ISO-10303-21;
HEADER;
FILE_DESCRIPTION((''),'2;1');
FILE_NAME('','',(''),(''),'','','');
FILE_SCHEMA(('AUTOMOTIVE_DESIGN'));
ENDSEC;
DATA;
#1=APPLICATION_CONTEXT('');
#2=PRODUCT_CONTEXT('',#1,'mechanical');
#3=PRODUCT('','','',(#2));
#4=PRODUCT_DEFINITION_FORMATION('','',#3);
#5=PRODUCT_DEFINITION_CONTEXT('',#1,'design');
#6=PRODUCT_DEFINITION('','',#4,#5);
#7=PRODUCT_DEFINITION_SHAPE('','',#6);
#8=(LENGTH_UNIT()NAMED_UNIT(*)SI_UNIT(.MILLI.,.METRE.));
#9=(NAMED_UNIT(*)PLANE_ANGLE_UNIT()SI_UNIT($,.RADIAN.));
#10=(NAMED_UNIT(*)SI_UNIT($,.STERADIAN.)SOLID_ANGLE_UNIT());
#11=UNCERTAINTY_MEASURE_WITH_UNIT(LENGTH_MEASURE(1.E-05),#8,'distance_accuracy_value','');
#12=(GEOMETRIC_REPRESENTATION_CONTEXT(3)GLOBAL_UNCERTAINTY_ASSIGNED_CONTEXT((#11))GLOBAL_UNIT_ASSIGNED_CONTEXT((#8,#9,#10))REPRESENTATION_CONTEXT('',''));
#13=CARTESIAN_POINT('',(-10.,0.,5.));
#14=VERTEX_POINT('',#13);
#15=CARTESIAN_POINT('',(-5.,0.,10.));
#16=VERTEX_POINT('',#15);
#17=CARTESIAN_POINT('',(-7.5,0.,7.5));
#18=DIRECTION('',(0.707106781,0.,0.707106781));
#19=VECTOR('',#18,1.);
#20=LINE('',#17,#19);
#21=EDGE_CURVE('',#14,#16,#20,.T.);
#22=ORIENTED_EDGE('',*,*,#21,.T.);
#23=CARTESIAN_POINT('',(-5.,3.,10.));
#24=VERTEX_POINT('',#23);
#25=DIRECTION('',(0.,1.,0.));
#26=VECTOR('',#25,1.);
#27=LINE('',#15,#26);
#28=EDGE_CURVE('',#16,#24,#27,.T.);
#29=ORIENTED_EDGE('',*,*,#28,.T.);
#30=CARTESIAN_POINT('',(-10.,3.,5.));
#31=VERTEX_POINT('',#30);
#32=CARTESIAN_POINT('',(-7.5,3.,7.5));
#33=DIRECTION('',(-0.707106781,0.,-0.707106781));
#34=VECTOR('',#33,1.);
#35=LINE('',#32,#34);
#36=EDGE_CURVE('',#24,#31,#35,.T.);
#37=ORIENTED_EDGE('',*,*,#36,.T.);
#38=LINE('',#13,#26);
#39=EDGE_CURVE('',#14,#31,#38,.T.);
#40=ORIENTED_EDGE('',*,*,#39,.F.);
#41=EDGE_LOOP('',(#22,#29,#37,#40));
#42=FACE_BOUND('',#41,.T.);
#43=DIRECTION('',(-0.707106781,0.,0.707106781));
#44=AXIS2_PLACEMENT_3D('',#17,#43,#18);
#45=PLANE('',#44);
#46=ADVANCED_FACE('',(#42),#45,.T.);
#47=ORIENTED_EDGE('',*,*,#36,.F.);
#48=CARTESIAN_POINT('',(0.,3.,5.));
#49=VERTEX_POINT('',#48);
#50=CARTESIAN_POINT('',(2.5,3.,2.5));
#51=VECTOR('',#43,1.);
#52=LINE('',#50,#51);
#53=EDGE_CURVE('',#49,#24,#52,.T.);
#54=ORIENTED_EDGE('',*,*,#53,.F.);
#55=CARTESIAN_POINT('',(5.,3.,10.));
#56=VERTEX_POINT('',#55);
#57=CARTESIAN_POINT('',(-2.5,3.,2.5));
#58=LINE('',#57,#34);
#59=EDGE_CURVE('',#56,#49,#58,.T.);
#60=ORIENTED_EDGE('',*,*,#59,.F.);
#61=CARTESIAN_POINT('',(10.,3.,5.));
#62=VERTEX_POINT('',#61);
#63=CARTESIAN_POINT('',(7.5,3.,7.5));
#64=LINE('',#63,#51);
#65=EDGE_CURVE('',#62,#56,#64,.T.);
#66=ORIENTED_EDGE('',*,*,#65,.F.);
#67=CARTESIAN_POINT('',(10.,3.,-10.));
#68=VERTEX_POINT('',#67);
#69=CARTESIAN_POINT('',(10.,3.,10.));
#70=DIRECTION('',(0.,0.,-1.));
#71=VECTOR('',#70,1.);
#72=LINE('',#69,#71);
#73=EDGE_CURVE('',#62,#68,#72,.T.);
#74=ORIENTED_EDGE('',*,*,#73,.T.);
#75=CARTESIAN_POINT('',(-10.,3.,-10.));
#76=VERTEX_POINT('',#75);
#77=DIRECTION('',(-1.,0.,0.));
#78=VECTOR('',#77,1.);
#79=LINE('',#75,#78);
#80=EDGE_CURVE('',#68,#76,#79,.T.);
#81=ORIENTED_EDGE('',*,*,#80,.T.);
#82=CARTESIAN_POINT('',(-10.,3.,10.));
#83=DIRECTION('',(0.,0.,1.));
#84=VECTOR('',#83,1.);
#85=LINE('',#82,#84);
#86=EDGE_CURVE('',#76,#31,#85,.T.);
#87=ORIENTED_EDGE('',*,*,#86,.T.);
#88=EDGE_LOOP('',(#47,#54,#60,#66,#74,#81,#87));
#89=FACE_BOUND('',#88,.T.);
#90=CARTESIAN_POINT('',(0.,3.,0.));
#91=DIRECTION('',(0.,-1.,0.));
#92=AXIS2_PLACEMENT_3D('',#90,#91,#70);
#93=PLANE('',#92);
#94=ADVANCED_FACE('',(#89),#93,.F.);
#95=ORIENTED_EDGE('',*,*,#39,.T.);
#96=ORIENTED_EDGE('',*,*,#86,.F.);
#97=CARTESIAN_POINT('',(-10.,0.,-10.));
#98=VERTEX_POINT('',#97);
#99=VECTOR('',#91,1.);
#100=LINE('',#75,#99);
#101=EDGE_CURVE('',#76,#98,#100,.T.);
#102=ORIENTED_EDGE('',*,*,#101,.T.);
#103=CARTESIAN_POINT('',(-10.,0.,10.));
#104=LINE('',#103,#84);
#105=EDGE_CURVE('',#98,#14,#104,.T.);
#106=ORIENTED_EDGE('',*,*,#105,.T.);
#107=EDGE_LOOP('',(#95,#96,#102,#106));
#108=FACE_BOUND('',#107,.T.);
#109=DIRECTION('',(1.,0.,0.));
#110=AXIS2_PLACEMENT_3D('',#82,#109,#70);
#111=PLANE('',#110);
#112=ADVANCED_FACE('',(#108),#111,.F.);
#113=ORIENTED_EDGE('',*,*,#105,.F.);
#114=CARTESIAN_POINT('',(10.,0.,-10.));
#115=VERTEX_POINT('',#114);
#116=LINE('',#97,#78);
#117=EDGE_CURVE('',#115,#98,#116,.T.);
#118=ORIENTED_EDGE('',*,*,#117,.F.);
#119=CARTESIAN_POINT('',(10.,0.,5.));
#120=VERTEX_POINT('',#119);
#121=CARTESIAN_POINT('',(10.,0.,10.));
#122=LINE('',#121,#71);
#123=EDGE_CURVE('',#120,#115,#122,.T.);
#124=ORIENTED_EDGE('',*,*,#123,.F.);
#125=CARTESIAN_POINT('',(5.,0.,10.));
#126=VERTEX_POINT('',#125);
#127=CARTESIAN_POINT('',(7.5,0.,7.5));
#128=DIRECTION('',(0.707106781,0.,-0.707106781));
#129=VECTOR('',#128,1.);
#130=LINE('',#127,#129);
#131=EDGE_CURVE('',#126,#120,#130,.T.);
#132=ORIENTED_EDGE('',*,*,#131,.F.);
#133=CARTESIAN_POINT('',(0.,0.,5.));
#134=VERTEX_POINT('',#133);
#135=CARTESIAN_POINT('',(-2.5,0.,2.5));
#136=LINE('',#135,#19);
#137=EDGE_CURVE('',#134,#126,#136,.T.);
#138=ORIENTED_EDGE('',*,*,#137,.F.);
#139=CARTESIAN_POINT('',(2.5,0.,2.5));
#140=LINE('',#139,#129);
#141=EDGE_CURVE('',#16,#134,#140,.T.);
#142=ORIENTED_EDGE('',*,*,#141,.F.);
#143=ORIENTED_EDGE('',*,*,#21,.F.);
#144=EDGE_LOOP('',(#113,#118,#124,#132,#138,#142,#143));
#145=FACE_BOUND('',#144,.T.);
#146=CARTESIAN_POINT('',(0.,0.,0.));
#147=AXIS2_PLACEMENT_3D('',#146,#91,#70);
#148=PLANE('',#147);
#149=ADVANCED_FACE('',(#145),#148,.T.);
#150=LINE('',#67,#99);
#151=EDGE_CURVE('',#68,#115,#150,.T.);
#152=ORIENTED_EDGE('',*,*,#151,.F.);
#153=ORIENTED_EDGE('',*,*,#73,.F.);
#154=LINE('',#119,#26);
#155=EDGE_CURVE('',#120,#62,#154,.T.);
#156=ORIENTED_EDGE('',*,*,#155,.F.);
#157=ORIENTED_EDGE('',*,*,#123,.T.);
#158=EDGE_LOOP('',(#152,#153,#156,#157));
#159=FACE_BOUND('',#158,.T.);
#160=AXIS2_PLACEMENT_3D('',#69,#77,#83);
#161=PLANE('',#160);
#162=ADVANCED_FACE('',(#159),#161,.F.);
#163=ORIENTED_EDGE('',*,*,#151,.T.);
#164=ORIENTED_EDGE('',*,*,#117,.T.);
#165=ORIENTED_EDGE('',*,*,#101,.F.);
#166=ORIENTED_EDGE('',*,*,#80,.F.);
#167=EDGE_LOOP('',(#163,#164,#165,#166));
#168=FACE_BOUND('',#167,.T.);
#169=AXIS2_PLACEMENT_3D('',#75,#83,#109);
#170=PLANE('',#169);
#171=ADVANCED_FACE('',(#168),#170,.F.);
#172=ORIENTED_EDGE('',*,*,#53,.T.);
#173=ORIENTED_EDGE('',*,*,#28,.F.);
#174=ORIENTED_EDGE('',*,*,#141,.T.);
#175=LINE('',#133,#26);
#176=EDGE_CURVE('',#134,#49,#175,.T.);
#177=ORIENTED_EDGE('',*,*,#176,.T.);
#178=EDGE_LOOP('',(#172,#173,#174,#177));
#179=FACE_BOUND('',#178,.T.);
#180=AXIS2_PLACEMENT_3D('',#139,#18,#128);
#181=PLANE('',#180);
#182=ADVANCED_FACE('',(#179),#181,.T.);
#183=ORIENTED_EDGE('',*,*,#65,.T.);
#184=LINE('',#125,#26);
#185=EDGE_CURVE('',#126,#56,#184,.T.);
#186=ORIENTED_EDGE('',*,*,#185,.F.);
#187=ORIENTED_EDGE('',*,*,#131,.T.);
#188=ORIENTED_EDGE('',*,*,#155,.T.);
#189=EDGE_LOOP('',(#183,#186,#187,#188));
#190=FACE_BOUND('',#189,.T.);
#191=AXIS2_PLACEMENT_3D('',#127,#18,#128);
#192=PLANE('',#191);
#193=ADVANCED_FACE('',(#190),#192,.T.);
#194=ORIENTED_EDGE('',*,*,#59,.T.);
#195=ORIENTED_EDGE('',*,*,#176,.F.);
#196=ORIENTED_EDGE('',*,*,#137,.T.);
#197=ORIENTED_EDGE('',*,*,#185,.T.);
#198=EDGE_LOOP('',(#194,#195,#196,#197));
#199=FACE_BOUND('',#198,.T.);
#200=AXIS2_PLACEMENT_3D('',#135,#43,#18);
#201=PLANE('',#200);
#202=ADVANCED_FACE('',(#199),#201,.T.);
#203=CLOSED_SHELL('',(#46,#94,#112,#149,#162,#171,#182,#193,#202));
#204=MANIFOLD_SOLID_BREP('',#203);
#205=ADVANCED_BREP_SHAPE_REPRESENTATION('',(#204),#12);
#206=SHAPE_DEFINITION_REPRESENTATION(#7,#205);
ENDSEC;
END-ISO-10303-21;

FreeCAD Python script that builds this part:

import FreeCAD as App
import Part
import Sketcher

doc = App.newDocument("Part")
body = doc.addObject("PartDesign::Body", "Body")

sketch1 = body.newObject("Sketcher::SketchObject", "Sketch")
sketch1.AttachmentSupport = (doc.getObject("XZ_Plane"), [""])
sketch1.MapMode = "FlatFace"
sketch1.addGeometry([
    Part.LineSegment(App.Vector(-10, -10, 0), App.Vector(-10, 10, 0)),
    Part.LineSegment(App.Vector(-10, 10, 0), App.Vector(10, 10, 0)),
    Part.LineSegment(App.Vector(10, 10, 0), App.Vector(10, -10, 0)),
    Part.LineSegment(App.Vector(10, -10, 0), App.Vector(-10, -10, 0)),
], False)
sketch1.addConstraint([
    Sketcher.Constraint("Coincident", 0, 2, 1, 1),
    Sketcher.Constraint("Coincident", 1, 2, 2, 1),
    Sketcher.Constraint("Coincident", 2, 2, 3, 1),
    Sketcher.Constraint("Coincident", 3, 2, 0, 1),
    Sketcher.Constraint("Vertical", 0),
    Sketcher.Constraint("Horizontal", 1),
    Sketcher.Constraint("Vertical", 2),
    Sketcher.Constraint("Horizontal", 3),
    Sketcher.Constraint("Symmetric", 0, 2, 2, 2, -1, 1),
    Sketcher.Constraint("Equal", 3, 0),
    Sketcher.Constraint("DistanceX", 1, 1, 1, 2, 20.0),
])
pad1 = body.newObject("PartDesign::Pad", "Pad")
pad1.Profile = sketch1
pad1.Length = 3
pad1.Reversed = True

sketch2 = body.newObject("Sketcher::SketchObject", "Sketch001")
sketch2.AttachmentSupport = (doc.getObject("XZ_Plane"), [""])
sketch2.MapMode = "FlatFace"
sketch2.AttachmentOffset = App.Placement(App.Vector(0, 0, -3), App.Rotation())
sketch2.addGeometry([
    Part.LineSegment(App.Vector(-5, 10, 0), App.Vector(-10, 5, 0)),
    Part.LineSegment(App.Vector(-10, 5, 0), App.Vector(-10, 10, 0)),
    Part.LineSegment(App.Vector(-10, 10, 0), App.Vector(-5, 10, 0)),
    Part.LineSegment(App.Vector(0, 5, 0), App.Vector(-5, 10, 0)),
    Part.LineSegment(App.Vector(-5, 10, 0), App.Vector(5, 10, 0)),
    Part.LineSegment(App.Vector(5, 10, 0), App.Vector(0, 5, 0)),
    Part.LineSegment(App.Vector(10, 5, 0), App.Vector(5, 10, 0)),
    Part.LineSegment(App.Vector(5, 10, 0), App.Vector(10, 10, 0)),
    Part.LineSegment(App.Vector(10, 10, 0), App.Vector(10, 5, 0)),
], False)
sketch2.addConstraint([
    Sketcher.Constraint("Coincident", 0, 2, 1, 1),
    Sketcher.Constraint("Coincident", 1, 2, 2, 1),
    Sketcher.Constraint("Coincident", 2, 2, 0, 1),
    Sketcher.Constraint("Coincident", 3, 2, 4, 1),
    Sketcher.Constraint("Coincident", 4, 2, 5, 1),
    Sketcher.Constraint("Coincident", 5, 2, 3, 1),
    Sketcher.Constraint("Coincident", 6, 2, 7, 1),
    Sketcher.Constraint("Coincident", 7, 2, 8, 1),
    Sketcher.Constraint("Coincident", 8, 2, 6, 1),
    Sketcher.Constraint("Vertical", 1),
    Sketcher.Constraint("Horizontal", 2),
    Sketcher.Constraint("Horizontal", 4),
    Sketcher.Constraint("Horizontal", 7),
    Sketcher.Constraint("Vertical", 8),
    Sketcher.Constraint("Coincident", 3, 2, 2, 2),
    Sketcher.Constraint("Coincident", 6, 2, 4, 2),
    Sketcher.Constraint("Symmetric", 0, 2, 8, 2, -2),
    Sketcher.Constraint("PointOnObject", 5, 2, -2),
    Sketcher.Constraint("Perpendicular", 0, 3),
    Sketcher.Constraint("Perpendicular", 3, 5),
    Sketcher.Constraint("Horizontal", 0, 2, 5, 2),
    Sketcher.Constraint("Equal", 2, 7),
    Sketcher.Constraint("DistanceX", 2, 1, 2, 2, 5.0),
    Sketcher.Constraint("DistanceY", -1, 1, 0, 2, 5.0),
])
pocket1 = body.newObject("PartDesign::Pocket", "Pocket")
pocket1.Profile = sketch2
pocket1.Type = "ThroughAll"
pocket1.Midplane = True

doc.recompute()
